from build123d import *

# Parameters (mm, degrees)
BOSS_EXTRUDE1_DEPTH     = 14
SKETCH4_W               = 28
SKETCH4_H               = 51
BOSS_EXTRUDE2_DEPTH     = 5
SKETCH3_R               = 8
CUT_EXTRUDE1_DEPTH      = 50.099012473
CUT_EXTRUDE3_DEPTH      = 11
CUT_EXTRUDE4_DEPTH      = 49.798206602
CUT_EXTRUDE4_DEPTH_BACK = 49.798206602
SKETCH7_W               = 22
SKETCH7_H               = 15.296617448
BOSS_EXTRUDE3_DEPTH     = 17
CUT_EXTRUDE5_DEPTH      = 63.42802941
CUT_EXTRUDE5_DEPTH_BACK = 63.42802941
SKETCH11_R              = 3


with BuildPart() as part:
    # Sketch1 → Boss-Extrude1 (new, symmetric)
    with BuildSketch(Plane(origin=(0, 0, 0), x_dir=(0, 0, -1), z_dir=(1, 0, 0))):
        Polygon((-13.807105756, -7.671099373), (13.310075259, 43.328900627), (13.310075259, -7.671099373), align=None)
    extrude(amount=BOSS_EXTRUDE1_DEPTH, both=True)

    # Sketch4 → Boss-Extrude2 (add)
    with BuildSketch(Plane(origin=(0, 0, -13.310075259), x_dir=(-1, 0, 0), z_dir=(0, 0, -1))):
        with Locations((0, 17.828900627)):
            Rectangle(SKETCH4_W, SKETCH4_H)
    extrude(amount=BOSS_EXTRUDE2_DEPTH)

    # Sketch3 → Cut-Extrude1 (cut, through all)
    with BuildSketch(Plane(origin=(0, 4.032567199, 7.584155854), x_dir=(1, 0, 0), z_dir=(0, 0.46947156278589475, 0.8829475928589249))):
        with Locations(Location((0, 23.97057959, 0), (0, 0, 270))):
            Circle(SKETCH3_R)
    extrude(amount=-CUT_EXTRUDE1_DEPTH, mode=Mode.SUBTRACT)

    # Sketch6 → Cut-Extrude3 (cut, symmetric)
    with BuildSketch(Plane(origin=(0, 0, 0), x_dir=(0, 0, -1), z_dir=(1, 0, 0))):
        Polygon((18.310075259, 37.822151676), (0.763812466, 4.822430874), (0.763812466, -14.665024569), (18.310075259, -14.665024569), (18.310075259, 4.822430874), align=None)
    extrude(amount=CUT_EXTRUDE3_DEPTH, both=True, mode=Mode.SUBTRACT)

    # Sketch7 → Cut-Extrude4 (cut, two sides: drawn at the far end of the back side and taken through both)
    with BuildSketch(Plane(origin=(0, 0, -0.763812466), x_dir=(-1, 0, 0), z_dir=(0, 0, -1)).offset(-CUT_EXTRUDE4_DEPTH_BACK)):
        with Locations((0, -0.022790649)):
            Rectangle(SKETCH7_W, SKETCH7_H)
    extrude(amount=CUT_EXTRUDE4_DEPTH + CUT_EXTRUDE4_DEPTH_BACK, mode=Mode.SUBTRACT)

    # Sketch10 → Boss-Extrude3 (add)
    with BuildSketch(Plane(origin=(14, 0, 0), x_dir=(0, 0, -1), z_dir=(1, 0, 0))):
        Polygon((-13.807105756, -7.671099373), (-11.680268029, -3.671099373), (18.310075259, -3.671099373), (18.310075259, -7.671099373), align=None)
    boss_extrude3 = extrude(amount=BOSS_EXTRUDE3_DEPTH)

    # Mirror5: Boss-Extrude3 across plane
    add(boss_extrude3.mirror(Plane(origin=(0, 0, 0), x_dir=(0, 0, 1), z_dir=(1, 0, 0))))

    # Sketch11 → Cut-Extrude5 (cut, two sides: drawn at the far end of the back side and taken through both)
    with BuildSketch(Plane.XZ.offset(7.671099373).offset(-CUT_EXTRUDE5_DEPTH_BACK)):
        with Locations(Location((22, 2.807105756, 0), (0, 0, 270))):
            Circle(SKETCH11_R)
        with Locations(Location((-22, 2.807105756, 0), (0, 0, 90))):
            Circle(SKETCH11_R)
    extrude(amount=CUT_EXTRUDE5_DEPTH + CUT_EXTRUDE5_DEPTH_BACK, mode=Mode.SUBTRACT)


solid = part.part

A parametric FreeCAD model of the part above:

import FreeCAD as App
import Part
import Sketcher
from FreeCAD import Vector
Q = App.Units.Quantity

doc = App.newDocument("Part")
body = doc.addObject("PartDesign::Body", "Body")

# Sketch on YZ plane
sketch1 = body.newObject("Sketcher::SketchObject", "Sketch")
sketch1.AttachmentSupport = (doc.getObject("YZ_Plane"), [""])
sketch1.MapMode = "FlatFace"
sketch1.addGeometry([
    Part.LineSegment(Vector(43, -13, 0), Vector(-8, 14, 0)),
    Part.LineSegment(Vector(-8, 14, 0), Vector(-8, -13, 0)),
    Part.LineSegment(Vector(-8, -13, 0), Vector(43, -13, 0)),
], False)
sketch1.addConstraint([
    Sketcher.Constraint("Coincident", 0, 2, 1, 1),
    Sketcher.Constraint("Coincident", 1, 2, 2, 1),
    Sketcher.Constraint("Coincident", 2, 2, 0, 1),
    Sketcher.Constraint("Vertical", 1),
    Sketcher.Constraint("Horizontal", 2),
    Sketcher.Constraint("DistanceX", 2, 1, 2, 2, Q("51 mm")),
    Sketcher.Constraint("Angle", 0, Q("152 deg")),
    Sketcher.Constraint("DistanceX", 0, 2, -1, 1, Q("7.671099 mm")),
    Sketcher.Constraint("DistanceY", -1, 1, 0, 2, Q("13.807106 mm")),
])
pad1 = body.newObject("PartDesign::Pad", "Pad")
pad1.Profile = sketch1
pad1.Length = 28
pad1.Midplane = True

# Sketch on XY plane
sketch2 = body.newObject("Sketcher::SketchObject", "Sketch001")
sketch2.AttachmentSupport = (doc.getObject("XY_Plane"), [""])
sketch2.MapMode = "FlatFace"
sketch2.AttachmentOffset = App.Placement(Vector(0, 0, -13.310075), App.Rotation())
sketch2.addGeometry([
    Part.LineSegment(Vector(14, 43, 0), Vector(14, -8, 0)),
    Part.LineSegment(Vector(14, -8, 0), Vector(-14, -8, 0)),
    Part.LineSegment(Vector(-14, -8, 0), Vector(-14, 43, 0)),
    Part.LineSegment(Vector(-14, 43, 0), Vector(14, 43, 0)),
], False)
sketch2.addConstraint([
    Sketcher.Constraint("Coincident", 0, 2, 1, 1),
    Sketcher.Constraint("Coincident", 1, 2, 2, 1),
    Sketcher.Constraint("Coincident", 2, 2, 3, 1),
    Sketcher.Constraint("Coincident", 3, 2, 0, 1),
    Sketcher.Constraint("Vertical", 0),
    Sketcher.Constraint("Horizontal", 1),
    Sketcher.Constraint("Vertical", 2),
    Sketcher.Constraint("Horizontal", 3),
    Sketcher.Constraint("DistanceX", 1, 2, 1, 1, Q("28 mm")),
    Sketcher.Constraint("DistanceY", 0, 2, 0, 1, Q("51 mm")),
    Sketcher.Constraint("DistanceX", -1, 1, 0, 2, Q("14 mm")),
    Sketcher.Constraint("DistanceY", 0, 2, -1, 1, Q("7.671099 mm")),
])
pad2 = body.newObject("PartDesign::Pad", "Pad001")
pad2.Profile = sketch2
pad2.Length = 5
pad2.Reversed = True

# Sketch on an angled plane
sketch3 = body.newObject("Sketcher::SketchObject", "Sketch002")
sketch3.Placement = App.Placement(Vector(0, 4.032567, 7.584156), App.Rotation(Vector(1, 0, 0), Vector(0, 0.882947593, -0.469471563), Vector(0, 0.469471563, 0.882947593), "ZXY"))
sketch3.addGeometry(Part.Circle(Vector(0, 24, 0), Vector(0, 0, 1), 8), False)
sketch3.addConstraint([
    Sketcher.Constraint("PointOnObject", 0, 3, -2),
    Sketcher.Constraint("Diameter", 0, Q("16 mm")),
    Sketcher.Constraint("DistanceY", -1, 1, 0, 3, Q("23.97058 mm")),
])
pocket1 = body.newObject("PartDesign::Pocket", "Pocket")
pocket1.Profile = sketch3
pocket1.Type = "ThroughAll"

# Sketch on YZ plane
sketch4 = body.newObject("Sketcher::SketchObject", "Sketch003")
sketch4.AttachmentSupport = (doc.getObject("YZ_Plane"), [""])
sketch4.MapMode = "FlatFace"
sketch4.addGeometry([
    Part.LineSegment(Vector(38, -18, 0), Vector(5, -1, 0)),
    Part.LineSegment(Vector(5, -1, 0), Vector(-15, -1, 0)),
    Part.LineSegment(Vector(-15, -1, 0), Vector(-15, -18, 0)),
    Part.LineSegment(Vector(-15, -18, 0), Vector(38, -18, 0)),
], False)
sketch4.addConstraint([
    Sketcher.Constraint("Coincident", 0, 2, 1, 1),
    Sketcher.Constraint("Coincident", 1, 2, 2, 1),
    Sketcher.Constraint("Coincident", 2, 2, 3, 1),
    Sketcher.Constraint("Coincident", 3, 2, 0, 1),
    Sketcher.Constraint("Horizontal", 1),
    Sketcher.Constraint("Vertical", 2),
    Sketcher.Constraint("Horizontal", 3),
    Sketcher.Constraint("Angle", 0, Q("152 deg")),
    Sketcher.Constraint("DistanceX", 1, 2, 1, 1, Q("19.487455 mm")),
    Sketcher.Constraint("DistanceX", 3, 1, 3, 2, Q("52.487176 mm")),
    Sketcher.Constraint("DistanceX", -1, 1, 0, 2, Q("4.822431 mm")),
    Sketcher.Constraint("DistanceY", 0, 2, -1, 1, Q("0.763812 mm")),
])
pocket2 = body.newObject("PartDesign::Pocket", "Pocket001")
pocket2.Profile = sketch4
pocket2.Length = 22
pocket2.Midplane = True

# Sketch on XY plane
sketch5 = body.newObject("Sketcher::SketchObject", "Sketch004")
sketch5.AttachmentSupport = (doc.getObject("XY_Plane"), [""])
sketch5.MapMode = "FlatFace"
sketch5.AttachmentOffset = App.Placement(Vector(0, 0, -0.763812), App.Rotation())
sketch5.addGeometry([
    Part.LineSegment(Vector(11, 8, 0), Vector(11, -8, 0)),
    Part.LineSegment(Vector(11, -8, 0), Vector(-11, -8, 0)),
    Part.LineSegment(Vector(-11, -8, 0), Vector(-11, 8, 0)),
    Part.LineSegment(Vector(-11, 8, 0), Vector(11, 8, 0)),
], False)
sketch5.addConstraint([
    Sketcher.Constraint("Coincident", 0, 2, 1, 1),
    Sketcher.Constraint("Coincident", 1, 2, 2, 1),
    Sketcher.Constraint("Coincident", 2, 2, 3, 1),
    Sketcher.Constraint("Coincident", 3, 2, 0, 1),
    Sketcher.Constraint("Vertical", 0),
    Sketcher.Constraint("Horizontal", 1),
    Sketcher.Constraint("Vertical", 2),
    Sketcher.Constraint("Horizontal", 3),
    Sketcher.Constraint("DistanceX", 1, 2, 1, 1, Q("22 mm")),
    Sketcher.Constraint("DistanceX", -1, 1, 0, 2, Q("11 mm")),
    Sketcher.Constraint("DistanceY", 0, 2, -1, 1, Q("7.671099 mm")),
    Sketcher.Constraint("DistanceY", 0, 2, 0, 1, Q("15.296617 mm")),
])
pocket3 = body.newObject("PartDesign::Pocket", "Pocket002")
pocket3.Profile = sketch5
pocket3.Type = "ThroughAll"
pocket3.Midplane = True

# Sketch on YZ plane
sketch6 = body.newObject("Sketcher::SketchObject", "Sketch005")
sketch6.AttachmentSupport = (doc.getObject("YZ_Plane"), [""])
sketch6.MapMode = "FlatFace"
sketch6.AttachmentOffset = App.Placement(Vector(0, 0, 14), App.Rotation())
sketch6.addGeometry([
    Part.LineSegment(Vector(-3.7, 11.7, 0), Vector(-7.7, 13.8, 0)),
    Part.LineSegment(Vector(-7.7, 13.8, 0), Vector(-7.7, -18.3, 0)),
    Part.LineSegment(Vector(-7.7, -18.3, 0), Vector(-3.7, -18.3, 0)),
    Part.LineSegment(Vector(-3.7, -18.3, 0), Vector(-3.7, 11.7, 0)),
], False)
sketch6.addConstraint([
    Sketcher.Constraint("Coincident", 0, 2, 1, 1),
    Sketcher.Constraint("Coincident", 1, 2, 2, 1),
    Sketcher.Constraint("Coincident", 2, 2, 3, 1),
    Sketcher.Constraint("Coincident", 3, 2, 0, 1),
    Sketcher.Constraint("Vertical", 1),
    Sketcher.Constraint("Horizontal", 2),
    Sketcher.Constraint("Vertical", 3),
    Sketcher.Constraint("DistanceX", 2, 1, 2, 2, Q("4 mm")),
    Sketcher.Constraint("Angle", 0, Q("152 deg")),
    Sketcher.Constraint("DistanceY", 1, 2, 1, 1, Q("32.117181 mm")),
    Sketcher.Constraint("DistanceX", 0, 2, -1, 1, Q("7.671099 mm")),
    Sketcher.Constraint("DistanceY", -1, 1, 3, 2, Q("11.680268 mm")),
])
pad3 = body.newObject("PartDesign::Pad", "Pad002")
pad3.Profile = sketch6
pad3.Length = 17
doc.recompute()

mirrored = body.newObject("PartDesign::Mirrored", "Mirrored")
mirrored.Originals = [pad3]
mirrored.MirrorPlane = (doc.getObject("YZ_Plane"), [""])
body.Tip = mirrored

# Sketch on XZ plane
sketch7 = body.newObject("Sketcher::SketchObject", "Sketch006")
sketch7.AttachmentSupport = (doc.getObject("XZ_Plane"), [""])
sketch7.MapMode = "FlatFace"
sketch7.AttachmentOffset = App.Placement(Vector(0, 0, 7.671099), App.Rotation())
sketch7.addGeometry([
    Part.Circle(Vector(22, 2.8, 0), Vector(0, 0, 1), 3),
    Part.Circle(Vector(-22, 2.8, 0), Vector(0, 0, 1), 3),
], False)
sketch7.addConstraint([
    Sketcher.Constraint("Equal", 0, 1),
    Sketcher.Constraint("Symmetric", 0, 3, 1, 3, -2),
    Sketcher.Constraint("Diameter", 0, Q("6 mm")),
    Sketcher.Constraint("DistanceX", -1, 1, 0, 3, Q("22 mm")),
    Sketcher.Constraint("DistanceY", -1, 1, 0, 3, Q("2.807106 mm")),
])
pocket4 = body.newObject("PartDesign::Pocket", "Pocket003")
pocket4.Profile = sketch7
pocket4.Type = "ThroughAll"
pocket4.Midplane = True

doc.recompute()
